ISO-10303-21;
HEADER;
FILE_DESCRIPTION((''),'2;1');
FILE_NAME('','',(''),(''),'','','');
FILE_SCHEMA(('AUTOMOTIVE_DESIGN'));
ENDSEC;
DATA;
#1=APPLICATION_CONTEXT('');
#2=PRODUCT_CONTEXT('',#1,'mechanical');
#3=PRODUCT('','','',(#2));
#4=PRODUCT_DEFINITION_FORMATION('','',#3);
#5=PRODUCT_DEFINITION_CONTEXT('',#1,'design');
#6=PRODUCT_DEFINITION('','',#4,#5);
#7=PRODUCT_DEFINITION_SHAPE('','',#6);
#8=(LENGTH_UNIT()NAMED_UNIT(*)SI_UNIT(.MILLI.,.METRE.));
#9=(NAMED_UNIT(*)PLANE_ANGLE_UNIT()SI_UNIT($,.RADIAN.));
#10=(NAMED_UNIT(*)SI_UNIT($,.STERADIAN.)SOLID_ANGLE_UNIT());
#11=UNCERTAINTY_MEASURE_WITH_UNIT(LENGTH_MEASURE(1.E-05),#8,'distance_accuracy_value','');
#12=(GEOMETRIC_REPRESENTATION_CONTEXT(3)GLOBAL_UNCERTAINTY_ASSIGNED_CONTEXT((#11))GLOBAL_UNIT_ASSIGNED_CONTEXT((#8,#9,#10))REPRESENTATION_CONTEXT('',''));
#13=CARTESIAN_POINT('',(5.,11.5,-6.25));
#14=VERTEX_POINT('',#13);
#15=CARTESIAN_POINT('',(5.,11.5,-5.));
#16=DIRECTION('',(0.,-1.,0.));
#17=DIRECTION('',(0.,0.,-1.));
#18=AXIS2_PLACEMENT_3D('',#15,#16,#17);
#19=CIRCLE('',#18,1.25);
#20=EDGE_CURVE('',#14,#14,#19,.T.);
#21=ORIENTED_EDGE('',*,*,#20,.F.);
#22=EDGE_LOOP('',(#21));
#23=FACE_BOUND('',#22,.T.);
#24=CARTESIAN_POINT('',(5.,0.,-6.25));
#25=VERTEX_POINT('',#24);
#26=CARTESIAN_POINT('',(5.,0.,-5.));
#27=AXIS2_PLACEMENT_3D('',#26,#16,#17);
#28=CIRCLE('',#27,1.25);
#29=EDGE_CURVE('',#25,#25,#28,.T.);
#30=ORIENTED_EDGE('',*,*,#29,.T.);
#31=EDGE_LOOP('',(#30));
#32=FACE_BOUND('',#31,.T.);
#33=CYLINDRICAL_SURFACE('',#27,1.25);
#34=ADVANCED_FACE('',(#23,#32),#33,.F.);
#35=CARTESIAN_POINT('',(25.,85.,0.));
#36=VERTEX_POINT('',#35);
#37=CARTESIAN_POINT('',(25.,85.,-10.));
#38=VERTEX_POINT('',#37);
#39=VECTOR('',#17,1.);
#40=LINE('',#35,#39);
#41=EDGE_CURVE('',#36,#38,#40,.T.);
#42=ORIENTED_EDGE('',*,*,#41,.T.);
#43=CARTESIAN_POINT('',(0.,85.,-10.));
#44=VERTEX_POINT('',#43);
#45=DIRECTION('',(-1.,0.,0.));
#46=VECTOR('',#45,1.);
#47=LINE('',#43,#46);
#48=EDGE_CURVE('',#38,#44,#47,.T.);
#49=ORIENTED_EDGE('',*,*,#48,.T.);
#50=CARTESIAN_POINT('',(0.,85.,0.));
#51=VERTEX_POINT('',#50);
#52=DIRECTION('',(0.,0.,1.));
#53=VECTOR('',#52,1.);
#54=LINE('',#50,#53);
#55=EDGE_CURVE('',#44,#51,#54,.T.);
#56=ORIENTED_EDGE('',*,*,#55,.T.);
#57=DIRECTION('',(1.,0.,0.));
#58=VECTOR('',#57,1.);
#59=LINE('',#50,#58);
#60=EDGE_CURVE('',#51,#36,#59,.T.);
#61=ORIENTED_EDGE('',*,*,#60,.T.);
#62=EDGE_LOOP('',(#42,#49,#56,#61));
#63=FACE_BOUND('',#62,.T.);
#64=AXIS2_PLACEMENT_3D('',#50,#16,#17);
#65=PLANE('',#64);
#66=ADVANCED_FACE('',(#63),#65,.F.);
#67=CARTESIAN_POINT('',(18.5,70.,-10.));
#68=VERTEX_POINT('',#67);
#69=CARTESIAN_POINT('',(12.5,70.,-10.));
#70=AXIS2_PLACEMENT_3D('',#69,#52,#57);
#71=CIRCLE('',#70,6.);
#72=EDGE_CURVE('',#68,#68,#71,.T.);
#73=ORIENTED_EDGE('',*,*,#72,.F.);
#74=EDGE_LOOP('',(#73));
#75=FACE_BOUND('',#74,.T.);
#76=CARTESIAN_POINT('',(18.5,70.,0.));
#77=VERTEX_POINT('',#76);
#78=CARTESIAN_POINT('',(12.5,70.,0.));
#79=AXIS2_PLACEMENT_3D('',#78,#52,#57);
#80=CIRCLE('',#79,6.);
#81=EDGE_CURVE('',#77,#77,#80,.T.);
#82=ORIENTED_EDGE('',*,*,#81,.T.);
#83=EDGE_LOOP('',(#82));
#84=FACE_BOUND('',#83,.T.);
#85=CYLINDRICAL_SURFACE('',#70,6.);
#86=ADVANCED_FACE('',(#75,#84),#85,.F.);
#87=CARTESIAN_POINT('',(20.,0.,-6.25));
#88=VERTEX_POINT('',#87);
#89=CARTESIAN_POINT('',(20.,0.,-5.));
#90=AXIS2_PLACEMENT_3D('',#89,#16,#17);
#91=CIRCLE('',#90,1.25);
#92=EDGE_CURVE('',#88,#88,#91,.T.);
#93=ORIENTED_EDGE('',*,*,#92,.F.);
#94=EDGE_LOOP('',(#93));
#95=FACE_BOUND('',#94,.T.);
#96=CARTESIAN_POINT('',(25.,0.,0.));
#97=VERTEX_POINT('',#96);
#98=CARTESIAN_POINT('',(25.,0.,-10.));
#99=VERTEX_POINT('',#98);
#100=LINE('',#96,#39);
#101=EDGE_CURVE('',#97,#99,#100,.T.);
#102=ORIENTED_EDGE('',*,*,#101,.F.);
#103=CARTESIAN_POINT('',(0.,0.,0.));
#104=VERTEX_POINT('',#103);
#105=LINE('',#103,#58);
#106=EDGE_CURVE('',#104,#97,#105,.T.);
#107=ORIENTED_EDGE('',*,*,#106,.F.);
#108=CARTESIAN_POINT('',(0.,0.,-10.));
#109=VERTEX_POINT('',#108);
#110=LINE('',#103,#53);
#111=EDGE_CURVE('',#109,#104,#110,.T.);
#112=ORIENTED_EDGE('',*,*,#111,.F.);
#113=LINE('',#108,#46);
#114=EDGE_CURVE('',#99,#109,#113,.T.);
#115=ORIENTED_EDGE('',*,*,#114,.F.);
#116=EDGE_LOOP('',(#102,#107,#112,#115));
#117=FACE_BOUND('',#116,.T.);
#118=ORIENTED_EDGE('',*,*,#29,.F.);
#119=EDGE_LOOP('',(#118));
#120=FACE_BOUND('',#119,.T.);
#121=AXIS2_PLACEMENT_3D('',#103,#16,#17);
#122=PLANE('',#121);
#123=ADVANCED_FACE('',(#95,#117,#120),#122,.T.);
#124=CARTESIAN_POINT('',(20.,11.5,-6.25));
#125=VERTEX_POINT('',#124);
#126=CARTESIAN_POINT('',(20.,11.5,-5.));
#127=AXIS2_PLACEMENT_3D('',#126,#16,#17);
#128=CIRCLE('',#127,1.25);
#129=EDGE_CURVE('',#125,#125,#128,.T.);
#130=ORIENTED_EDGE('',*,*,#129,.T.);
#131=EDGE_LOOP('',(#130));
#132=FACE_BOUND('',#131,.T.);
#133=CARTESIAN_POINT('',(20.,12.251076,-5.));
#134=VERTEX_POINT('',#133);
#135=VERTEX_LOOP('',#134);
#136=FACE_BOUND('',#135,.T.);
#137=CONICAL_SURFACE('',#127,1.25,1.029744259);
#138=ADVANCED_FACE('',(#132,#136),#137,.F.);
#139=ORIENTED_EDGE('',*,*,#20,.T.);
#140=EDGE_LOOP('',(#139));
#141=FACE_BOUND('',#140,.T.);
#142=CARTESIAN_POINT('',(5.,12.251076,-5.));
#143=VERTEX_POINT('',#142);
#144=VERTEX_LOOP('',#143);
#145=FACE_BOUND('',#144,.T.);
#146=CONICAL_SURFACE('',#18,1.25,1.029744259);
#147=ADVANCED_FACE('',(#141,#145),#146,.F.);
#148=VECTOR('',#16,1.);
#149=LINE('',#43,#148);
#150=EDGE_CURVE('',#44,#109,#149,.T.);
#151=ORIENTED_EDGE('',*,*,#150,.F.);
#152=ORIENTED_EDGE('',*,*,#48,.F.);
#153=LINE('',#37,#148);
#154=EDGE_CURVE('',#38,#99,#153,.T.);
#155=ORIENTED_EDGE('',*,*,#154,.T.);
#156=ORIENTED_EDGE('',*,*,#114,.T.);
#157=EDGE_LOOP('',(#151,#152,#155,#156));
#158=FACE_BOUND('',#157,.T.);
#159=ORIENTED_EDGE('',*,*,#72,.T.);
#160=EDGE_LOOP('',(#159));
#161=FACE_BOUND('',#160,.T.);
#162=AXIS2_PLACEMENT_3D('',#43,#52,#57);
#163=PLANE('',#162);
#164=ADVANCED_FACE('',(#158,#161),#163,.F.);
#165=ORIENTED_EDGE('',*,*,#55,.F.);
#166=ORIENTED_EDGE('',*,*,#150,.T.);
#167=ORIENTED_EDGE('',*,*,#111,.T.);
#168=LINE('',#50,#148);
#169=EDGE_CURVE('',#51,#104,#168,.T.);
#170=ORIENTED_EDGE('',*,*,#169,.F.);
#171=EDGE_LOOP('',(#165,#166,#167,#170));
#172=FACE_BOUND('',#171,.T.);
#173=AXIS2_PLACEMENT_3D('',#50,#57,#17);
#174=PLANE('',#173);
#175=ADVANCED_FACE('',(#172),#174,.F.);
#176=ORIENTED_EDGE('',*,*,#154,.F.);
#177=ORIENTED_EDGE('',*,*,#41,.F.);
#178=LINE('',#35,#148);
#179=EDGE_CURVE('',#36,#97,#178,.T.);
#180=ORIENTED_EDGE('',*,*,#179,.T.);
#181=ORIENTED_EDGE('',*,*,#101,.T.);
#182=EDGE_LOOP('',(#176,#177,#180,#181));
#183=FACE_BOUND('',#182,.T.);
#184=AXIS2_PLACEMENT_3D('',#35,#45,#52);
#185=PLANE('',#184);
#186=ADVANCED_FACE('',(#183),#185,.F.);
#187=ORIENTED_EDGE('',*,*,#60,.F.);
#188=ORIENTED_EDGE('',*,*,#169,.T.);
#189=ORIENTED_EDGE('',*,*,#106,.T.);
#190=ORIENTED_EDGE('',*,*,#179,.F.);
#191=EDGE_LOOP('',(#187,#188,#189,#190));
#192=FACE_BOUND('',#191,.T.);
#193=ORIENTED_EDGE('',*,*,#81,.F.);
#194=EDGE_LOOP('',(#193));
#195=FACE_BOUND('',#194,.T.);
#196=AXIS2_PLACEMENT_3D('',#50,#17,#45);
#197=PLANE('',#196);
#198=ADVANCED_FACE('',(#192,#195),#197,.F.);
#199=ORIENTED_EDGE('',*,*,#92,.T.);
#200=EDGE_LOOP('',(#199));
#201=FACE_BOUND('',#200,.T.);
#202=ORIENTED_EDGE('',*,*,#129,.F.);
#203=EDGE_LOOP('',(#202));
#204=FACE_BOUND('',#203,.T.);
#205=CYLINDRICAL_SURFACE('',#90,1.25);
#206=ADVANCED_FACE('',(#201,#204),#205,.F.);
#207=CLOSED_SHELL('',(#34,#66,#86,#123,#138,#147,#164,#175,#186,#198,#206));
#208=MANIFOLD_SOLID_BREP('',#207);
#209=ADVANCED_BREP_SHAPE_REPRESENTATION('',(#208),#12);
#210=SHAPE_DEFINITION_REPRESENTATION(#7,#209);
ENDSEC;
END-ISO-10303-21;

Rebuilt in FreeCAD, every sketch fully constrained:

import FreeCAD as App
import Part
import Sketcher
Q = App.Units.Quantity

doc = App.newDocument("Part")
body = doc.addObject("PartDesign::Body", "Body")

# Sketch on XZ plane
sketch1 = body.newObject("Sketcher::SketchObject", "Sketch")
sketch1.AttachmentSupport = (doc.getObject("XZ_Plane"), [""])
sketch1.MapMode = "FlatFace"
sketch1.addGeometry([
    Part.LineSegment(App.Vector(0, -10, 0), App.Vector(0, 0, 0)),
    Part.LineSegment(App.Vector(0, 0, 0), App.Vector(25, 0, 0)),
    Part.LineSegment(App.Vector(25, 0, 0), App.Vector(25, -10, 0)),
    Part.LineSegment(App.Vector(25, -10, 0), App.Vector(0, -10, 0)),
], False)
sketch1.addConstraint([
    Sketcher.Constraint("Coincident", 0, 2, 1, 1),
    Sketcher.Constraint("Coincident", 1, 2, 2, 1),
    Sketcher.Constraint("Coincident", 2, 2, 3, 1),
    Sketcher.Constraint("Coincident", 3, 2, 0, 1),
    Sketcher.Constraint("Vertical", 0),
    Sketcher.Constraint("Horizontal", 1),
    Sketcher.Constraint("Vertical", 2),
    Sketcher.Constraint("Horizontal", 3),
    Sketcher.Constraint("Coincident", 0, 2, -1, 1),
    Sketcher.Constraint("DistanceX", 1, 1, 1, 2, Q("25 mm")),
    Sketcher.Constraint("DistanceY", 0, 1, 0, 2, Q("10 mm")),
])
pad1 = body.newObject("PartDesign::Pad", "Pad")
pad1.Profile = sketch1
pad1.Length = 85
pad1.Reversed = True

# Sketch on XY plane
sketch2 = body.newObject("Sketcher::SketchObject", "Sketch001")
sketch2.AttachmentSupport = (doc.getObject("XY_Plane"), [""])
sketch2.MapMode = "FlatFace"
sketch2.addGeometry(Part.Circle(App.Vector(12, 70, 0), App.Vector(0, 0, 1), 6), False)
sketch2.addConstraint([
    Sketcher.Constraint("Diameter", 0, Q("12 mm")),
    Sketcher.Constraint("DistanceY", -1, 1, 0, 3, Q("70 mm")),
    Sketcher.Constraint("DistanceX", -1, 1, 0, 3, Q("12.5 mm")),
])
pocket1 = body.newObject("PartDesign::Pocket", "Pocket")
pocket1.Profile = sketch2
pocket1.Type = "ThroughAll"

# Sketch on XZ plane
sketch3 = body.newObject("Sketcher::SketchObject", "Sketch002")
sketch3.AttachmentSupport = (doc.getObject("XZ_Plane"), [""])
sketch3.MapMode = "FlatFace"
sketch3.addGeometry([
    Part.Circle(App.Vector(20, -5, 0), App.Vector(0, 0, 1), 1.2),
    Part.Circle(App.Vector(5, -5, 0), App.Vector(0, 0, 1), 1.2),
], False)
sketch3.addConstraint([
    Sketcher.Constraint("Equal", 0, 1),
    Sketcher.Constraint("Horizontal", 0, 3, 1, 3),
    Sketcher.Constraint("Diameter", 0, Q("2.5 mm")),
    Sketcher.Constraint("DistanceX", -1, 1, 0, 3, Q("20 mm")),
    Sketcher.Constraint("DistanceY", 0, 3, -1, 1, Q("5 mm")),
    Sketcher.Constraint("DistanceX", -1, 1, 1, 3, Q("5 mm")),
])
doc.recompute()
hole = body.newObject("PartDesign::Hole", "Hole")
hole.Profile = sketch3
hole.ThreadType = "None"
hole.Diameter = 2.5
hole.DepthType = "Dimension"
hole.Depth = 11.5
hole.DrillPoint = "Angled"
hole.DrillPointAngle = 118

doc.recompute()
